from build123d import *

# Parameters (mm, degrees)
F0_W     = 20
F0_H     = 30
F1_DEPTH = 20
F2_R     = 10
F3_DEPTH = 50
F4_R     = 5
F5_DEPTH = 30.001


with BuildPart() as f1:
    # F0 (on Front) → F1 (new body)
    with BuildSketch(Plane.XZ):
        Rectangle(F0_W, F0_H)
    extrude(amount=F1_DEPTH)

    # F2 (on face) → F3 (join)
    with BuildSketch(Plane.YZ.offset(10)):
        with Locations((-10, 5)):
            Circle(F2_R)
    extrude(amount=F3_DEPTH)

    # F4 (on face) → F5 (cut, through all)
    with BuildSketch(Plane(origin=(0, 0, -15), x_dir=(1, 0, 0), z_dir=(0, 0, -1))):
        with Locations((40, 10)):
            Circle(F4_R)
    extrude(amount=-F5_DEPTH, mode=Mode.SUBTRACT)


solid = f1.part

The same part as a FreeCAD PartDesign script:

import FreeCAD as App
import Part
import Sketcher

doc = App.newDocument("Part")
body = doc.addObject("PartDesign::Body", "Body")

# Sketch on XZ plane
sketch1 = body.newObject("Sketcher::SketchObject", "Sketch")
sketch1.AttachmentSupport = (doc.getObject("XZ_Plane"), [""])
sketch1.MapMode = "FlatFace"
sketch1.addGeometry(Part.LineSegment(App.Vector(-10, 15, 0), App.Vector(-10, -15, 0)), False)
sketch1.addGeometry(Part.LineSegment(App.Vector(-10, -15, 0), App.Vector(10, -15, 0)), False)
sketch1.addGeometry(Part.LineSegment(App.Vector(10, -15, 0), App.Vector(10, 15, 0)), False)
sketch1.addGeometry(Part.LineSegment(App.Vector(10, 15, 0), App.Vector(-10, 15, 0)), False)
sketch1.addConstraint(Sketcher.Constraint("Coincident", 0, 2, 1, 1))
sketch1.addConstraint(Sketcher.Constraint("Coincident", 1, 2, 2, 1))
sketch1.addConstraint(Sketcher.Constraint("Coincident", 2, 2, 3, 1))
sketch1.addConstraint(Sketcher.Constraint("Coincident", 3, 2, 0, 1))
sketch1.addConstraint(Sketcher.Constraint("Vertical", 0))
sketch1.addConstraint(Sketcher.Constraint("Horizontal", 1))
sketch1.addConstraint(Sketcher.Constraint("Vertical", 2))
sketch1.addConstraint(Sketcher.Constraint("Horizontal", 3))
sketch1.addConstraint(Sketcher.Constraint("Symmetric", 0, 2, 2, 2, -1, 1))
sketch1.addConstraint(Sketcher.Constraint("DistanceX", 1, 1, 1, 2, 20.0))
sketch1.addConstraint(Sketcher.Constraint("DistanceY", 0, 2, 0, 1, 30.0))
pad1 = body.newObject("PartDesign::Pad", "Pad")
pad1.Profile = sketch1
pad1.Length = 20

# Sketch on YZ plane
sketch2 = body.newObject("Sketcher::SketchObject", "Sketch001")
sketch2.AttachmentSupport = (doc.getObject("YZ_Plane"), [""])
sketch2.MapMode = "FlatFace"
sketch2.AttachmentOffset = App.Placement(App.Vector(0, 0, 10), App.Rotation())
sketch2.addGeometry(Part.Circle(App.Vector(-10, 5, 0), App.Vector(0, 0, 1), 10), False)
sketch2.addConstraint(Sketcher.Constraint("Diameter", 0, 20.0))
sketch2.addConstraint(Sketcher.Constraint("DistanceX", 0, 3, -1, 1, 10.0))
sketch2.addConstraint(Sketcher.Constraint("DistanceY", -1, 1, 0, 3, 5.0))
pad2 = body.newObject("PartDesign::Pad", "Pad001")
pad2.Profile = sketch2
pad2.Length = 50

# Sketch on XY plane
sketch3 = body.newObject("Sketcher::SketchObject", "Sketch002")
sketch3.AttachmentSupport = (doc.getObject("XY_Plane"), [""])
sketch3.MapMode = "FlatFace"
sketch3.AttachmentOffset = App.Placement(App.Vector(0, 0, -15), App.Rotation())
sketch3.addGeometry(Part.Circle(App.Vector(40, -10, 0), App.Vector(0, 0, 1), 5), False)
sketch3.addConstraint(Sketcher.Constraint("Diameter", 0, 10.0))
sketch3.addConstraint(Sketcher.Constraint("DistanceX", -1, 1, 0, 3, 40.0))
sketch3.addConstraint(Sketcher.Constraint("DistanceY", 0, 3, -1, 1, 10.0))
pocket1 = body.newObject("PartDesign::Pocket", "Pocket")
pocket1.Profile = sketch3
pocket1.Type = "ThroughAll"
pocket1.Reversed = True

doc.recompute()
